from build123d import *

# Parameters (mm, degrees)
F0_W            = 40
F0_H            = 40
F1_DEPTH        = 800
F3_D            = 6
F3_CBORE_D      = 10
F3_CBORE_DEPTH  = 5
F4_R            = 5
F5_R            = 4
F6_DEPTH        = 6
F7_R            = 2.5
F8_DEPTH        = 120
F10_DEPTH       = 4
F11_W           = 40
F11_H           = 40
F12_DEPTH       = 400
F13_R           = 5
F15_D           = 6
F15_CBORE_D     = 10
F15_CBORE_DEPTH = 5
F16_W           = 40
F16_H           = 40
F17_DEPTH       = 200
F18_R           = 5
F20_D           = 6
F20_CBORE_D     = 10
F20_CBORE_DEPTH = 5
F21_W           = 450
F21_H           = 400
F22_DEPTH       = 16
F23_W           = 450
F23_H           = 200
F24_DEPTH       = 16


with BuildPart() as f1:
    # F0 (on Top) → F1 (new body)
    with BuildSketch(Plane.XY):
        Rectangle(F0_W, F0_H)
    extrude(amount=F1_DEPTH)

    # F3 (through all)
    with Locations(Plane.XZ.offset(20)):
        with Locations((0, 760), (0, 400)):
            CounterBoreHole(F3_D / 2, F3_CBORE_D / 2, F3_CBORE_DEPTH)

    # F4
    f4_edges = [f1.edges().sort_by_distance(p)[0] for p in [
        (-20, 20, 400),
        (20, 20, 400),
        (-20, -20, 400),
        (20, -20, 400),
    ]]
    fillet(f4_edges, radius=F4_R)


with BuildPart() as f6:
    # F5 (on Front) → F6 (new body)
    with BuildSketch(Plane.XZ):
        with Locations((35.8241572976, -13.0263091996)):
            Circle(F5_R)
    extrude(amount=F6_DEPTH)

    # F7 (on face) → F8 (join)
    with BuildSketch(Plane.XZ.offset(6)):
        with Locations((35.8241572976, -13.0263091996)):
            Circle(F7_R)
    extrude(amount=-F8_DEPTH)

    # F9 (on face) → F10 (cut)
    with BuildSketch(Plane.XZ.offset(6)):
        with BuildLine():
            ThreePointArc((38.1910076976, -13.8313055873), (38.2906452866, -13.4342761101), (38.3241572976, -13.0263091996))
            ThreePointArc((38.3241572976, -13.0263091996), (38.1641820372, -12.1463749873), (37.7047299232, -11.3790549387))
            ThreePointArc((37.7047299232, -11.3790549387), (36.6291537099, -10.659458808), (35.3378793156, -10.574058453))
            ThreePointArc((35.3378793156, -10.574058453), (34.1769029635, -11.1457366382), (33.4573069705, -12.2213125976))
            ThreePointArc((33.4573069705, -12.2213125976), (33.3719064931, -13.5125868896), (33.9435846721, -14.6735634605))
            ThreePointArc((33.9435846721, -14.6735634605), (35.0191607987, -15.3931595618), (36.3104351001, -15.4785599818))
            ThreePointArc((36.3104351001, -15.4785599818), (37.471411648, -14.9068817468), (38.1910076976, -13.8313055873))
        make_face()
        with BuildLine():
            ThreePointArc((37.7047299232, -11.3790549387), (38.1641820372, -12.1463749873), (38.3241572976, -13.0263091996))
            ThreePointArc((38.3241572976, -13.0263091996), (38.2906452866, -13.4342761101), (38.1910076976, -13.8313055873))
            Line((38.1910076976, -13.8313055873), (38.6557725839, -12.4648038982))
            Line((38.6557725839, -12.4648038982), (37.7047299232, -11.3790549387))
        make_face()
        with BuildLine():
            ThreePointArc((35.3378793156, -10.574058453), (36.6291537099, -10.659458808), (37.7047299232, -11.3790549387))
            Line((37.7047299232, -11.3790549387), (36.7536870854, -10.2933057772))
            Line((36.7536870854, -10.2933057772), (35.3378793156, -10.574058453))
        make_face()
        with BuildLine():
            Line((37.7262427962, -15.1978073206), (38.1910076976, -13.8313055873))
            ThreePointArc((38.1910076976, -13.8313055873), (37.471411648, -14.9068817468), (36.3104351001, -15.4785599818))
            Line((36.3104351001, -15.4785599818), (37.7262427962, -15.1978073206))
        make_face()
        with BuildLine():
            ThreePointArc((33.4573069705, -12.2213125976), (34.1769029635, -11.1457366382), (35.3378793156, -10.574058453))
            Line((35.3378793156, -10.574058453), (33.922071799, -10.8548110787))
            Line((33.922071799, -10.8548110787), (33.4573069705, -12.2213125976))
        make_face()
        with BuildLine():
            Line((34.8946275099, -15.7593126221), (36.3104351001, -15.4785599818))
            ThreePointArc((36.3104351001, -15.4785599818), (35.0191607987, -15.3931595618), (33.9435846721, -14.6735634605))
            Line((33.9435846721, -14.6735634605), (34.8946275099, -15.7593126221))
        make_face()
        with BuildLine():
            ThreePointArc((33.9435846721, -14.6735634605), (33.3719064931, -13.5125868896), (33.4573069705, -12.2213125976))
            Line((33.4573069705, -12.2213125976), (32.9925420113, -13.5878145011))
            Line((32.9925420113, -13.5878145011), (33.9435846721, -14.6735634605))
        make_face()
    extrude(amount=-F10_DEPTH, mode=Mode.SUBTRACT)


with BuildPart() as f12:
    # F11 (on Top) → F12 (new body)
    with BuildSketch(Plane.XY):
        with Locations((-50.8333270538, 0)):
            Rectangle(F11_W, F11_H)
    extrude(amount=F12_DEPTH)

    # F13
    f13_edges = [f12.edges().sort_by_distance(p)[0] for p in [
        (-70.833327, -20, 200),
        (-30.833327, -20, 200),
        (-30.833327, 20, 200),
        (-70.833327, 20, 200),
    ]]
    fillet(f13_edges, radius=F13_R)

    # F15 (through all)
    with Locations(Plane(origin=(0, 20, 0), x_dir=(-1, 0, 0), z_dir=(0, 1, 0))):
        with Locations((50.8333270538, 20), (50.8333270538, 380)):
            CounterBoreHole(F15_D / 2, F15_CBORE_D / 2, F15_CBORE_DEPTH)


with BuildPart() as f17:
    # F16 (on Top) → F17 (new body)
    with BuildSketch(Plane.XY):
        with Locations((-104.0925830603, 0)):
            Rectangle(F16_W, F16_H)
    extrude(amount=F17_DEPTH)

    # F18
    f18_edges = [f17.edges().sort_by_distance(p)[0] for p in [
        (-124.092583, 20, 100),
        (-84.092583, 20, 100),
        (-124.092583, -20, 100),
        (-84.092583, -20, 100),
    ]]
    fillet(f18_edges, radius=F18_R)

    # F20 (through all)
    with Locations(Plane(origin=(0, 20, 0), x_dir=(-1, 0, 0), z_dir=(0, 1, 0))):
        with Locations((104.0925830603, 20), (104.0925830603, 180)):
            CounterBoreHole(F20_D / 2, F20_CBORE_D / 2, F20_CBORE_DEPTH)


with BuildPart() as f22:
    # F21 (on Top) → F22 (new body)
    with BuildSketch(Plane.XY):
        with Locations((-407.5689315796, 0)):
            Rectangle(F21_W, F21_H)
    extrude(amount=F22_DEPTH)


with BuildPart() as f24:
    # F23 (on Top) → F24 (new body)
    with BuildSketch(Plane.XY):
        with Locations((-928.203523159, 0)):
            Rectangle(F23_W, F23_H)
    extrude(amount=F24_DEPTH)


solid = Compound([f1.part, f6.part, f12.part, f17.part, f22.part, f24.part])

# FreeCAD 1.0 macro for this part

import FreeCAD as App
import Part
import Sketcher


def edges_at(feature, points):
    """Names of the edges that pass closest to the given points."""
    edges = feature.Shape.Edges
    near = lambda p: min(range(len(edges)), key=lambda i: edges[i].distToShape(Part.Vertex(*p))[0])
    return sorted({f"Edge{near(p) + 1}" for p in points})

doc = App.newDocument("Part")
body = doc.addObject("PartDesign::Body", "Body")

sketch1 = body.newObject("Sketcher::SketchObject", "Sketch")
sketch1.AttachmentSupport = (doc.getObject("XY_Plane"), [""])
sketch1.MapMode = "FlatFace"
sketch1.addGeometry([
    Part.LineSegment(App.Vector(-20, 20, 0), App.Vector(-20, -20, 0)),
    Part.LineSegment(App.Vector(-20, -20, 0), App.Vector(20, -20, 0)),
    Part.LineSegment(App.Vector(20, -20, 0), App.Vector(20, 20, 0)),
    Part.LineSegment(App.Vector(20, 20, 0), App.Vector(-20, 20, 0)),
], False)
sketch1.addConstraint([
    Sketcher.Constraint("Coincident", 0, 2, 1, 1),
    Sketcher.Constraint("Coincident", 1, 2, 2, 1),
    Sketcher.Constraint("Coincident", 2, 2, 3, 1),
    Sketcher.Constraint("Coincident", 3, 2, 0, 1),
    Sketcher.Constraint("Vertical", 0),
    Sketcher.Constraint("Horizontal", 1),
    Sketcher.Constraint("Vertical", 2),
    Sketcher.Constraint("Horizontal", 3),
    Sketcher.Constraint("Symmetric", 0, 2, 2, 2, -1, 1),
    Sketcher.Constraint("Equal", 3, 0),
    Sketcher.Constraint("DistanceX", 1, 1, 1, 2, 40.0),
])
pad1 = body.newObject("PartDesign::Pad", "Pad")
pad1.Profile = sketch1
pad1.Length = 800

sketch2 = body.newObject("Sketcher::SketchObject", "Sketch001")
sketch2.AttachmentSupport = (doc.getObject("XZ_Plane"), [""])
sketch2.MapMode = "FlatFace"
sketch2.AttachmentOffset = App.Placement(App.Vector(0, 0, 20), App.Rotation())
sketch2.addGeometry([
    Part.Circle(App.Vector(0, 760, 0), App.Vector(0, 0, 1), 3),
    Part.Circle(App.Vector(0, 400, 0), App.Vector(0, 0, 1), 3),
], False)
sketch2.addConstraint([
    Sketcher.Constraint("Equal", 0, 1),
    Sketcher.Constraint("PointOnObject", 0, 3, -2),
    Sketcher.Constraint("PointOnObject", 1, 3, -2),
    Sketcher.Constraint("Diameter", 0, 6.0),
    Sketcher.Constraint("DistanceY", -1, 1, 0, 3, 760.0),
    Sketcher.Constraint("DistanceY", -1, 1, 1, 3, 400.0),
])
doc.recompute()
hole = body.newObject("PartDesign::Hole", "Hole")
hole.Profile = sketch2
hole.ThreadType = "None"
hole.Diameter = 6
hole.DepthType = "ThroughAll"
hole.HoleCutType = "Counterbore"
hole.HoleCutDiameter = 10
hole.HoleCutDepth = 5
doc.recompute()

fillet = body.newObject("PartDesign::Fillet", "Fillet")
fillet.Base = (hole, edges_at(hole, [
    (-20, 20, 400),
    (20, 20, 400),
    (-20, -20, 400),
    (20, -20, 400),
]))
fillet.Radius = 5
body2 = doc.addObject("PartDesign::Body", "Body001")

sketch3 = body2.newObject("Sketcher::SketchObject", "Sketch002")
sketch3.AttachmentSupport = (doc.getObject("XZ_Plane001"), [""])
sketch3.MapMode = "FlatFace"
sketch3.addGeometry(Part.Circle(App.Vector(35.8, -13, 0), App.Vector(0, 0, 1), 4), False)
sketch3.addConstraint([
    Sketcher.Constraint("Diameter", 0, 8.0),
    Sketcher.Constraint("DistanceY", 0, 3, -1, 1, 13.026309),
    Sketcher.Constraint("DistanceX", -1, 1, 0, 3, 35.824157),
])
pad2 = body2.newObject("PartDesign::Pad", "Pad001")
pad2.Profile = sketch3
pad2.Length = 6

sketch4 = body2.newObject("Sketcher::SketchObject", "Sketch003")
sketch4.AttachmentSupport = (doc.getObject("XZ_Plane001"), [""])
sketch4.MapMode = "FlatFace"
sketch4.AttachmentOffset = App.Placement(App.Vector(0, 0, 6), App.Rotation())
sketch4.addGeometry(Part.Circle(App.Vector(35.8, -13, 0), App.Vector(0, 0, 1), 2.5), False)
sketch4.addConstraint([
    Sketcher.Constraint("Diameter", 0, 5.0),
    Sketcher.Constraint("DistanceY", 0, 3, -1, 1, 13.026309),
    Sketcher.Constraint("DistanceX", -1, 1, 0, 3, 35.824157),
])
pad3 = body2.newObject("PartDesign::Pad", "Pad002")
pad3.Profile = sketch4
pad3.Length = 120
pad3.Reversed = True

sketch5 = body2.newObject("Sketcher::SketchObject", "Sketch004")
sketch5.AttachmentSupport = (doc.getObject("XZ_Plane001"), [""])
sketch5.MapMode = "FlatFace"
sketch5.AttachmentOffset = App.Placement(App.Vector(0, 0, 6), App.Rotation())
sketch5.addGeometry([
    Part.LineSegment(App.Vector(33.9, -14.7, 0), App.Vector(34.9, -15.8, 0)),
    Part.LineSegment(App.Vector(34.9, -15.8, 0), App.Vector(36.3, -15.5, 0)),
    Part.LineSegment(App.Vector(36.3, -15.5, 0), App.Vector(37.7, -15.2, 0)),
    Part.LineSegment(App.Vector(37.7, -15.2, 0), App.Vector(38.2, -13.8, 0)),
    Part.LineSegment(App.Vector(38.2, -13.8, 0), App.Vector(38.7, -12.5, 0)),
    Part.LineSegment(App.Vector(38.7, -12.5, 0), App.Vector(37.7, -11.4, 0)),
    Part.LineSegment(App.Vector(37.7, -11.4, 0), App.Vector(36.8, -10.3, 0)),
    Part.LineSegment(App.Vector(36.8, -10.3, 0), App.Vector(35.3, -10.6, 0)),
    Part.LineSegment(App.Vector(35.3, -10.6, 0), App.Vector(33.9, -10.9, 0)),
    Part.LineSegment(App.Vector(33.9, -10.9, 0), App.Vector(33.5, -12.2, 0)),
    Part.LineSegment(App.Vector(33.5, -12.2, 0), App.Vector(33, -13.6, 0)),
    Part.LineSegment(App.Vector(33, -13.6, 0), App.Vector(33.9, -14.7, 0)),
], False)
sketch5.addConstraint([
    Sketcher.Constraint("Coincident", 0, 2, 1, 1),
    Sketcher.Constraint("Coincident", 1, 2, 2, 1),
    Sketcher.Constraint("Coincident", 2, 2, 3, 1),
    Sketcher.Constraint("Coincident", 3, 2, 4, 1),
    Sketcher.Constraint("Coincident", 4, 2, 5, 1),
    Sketcher.Constraint("Coincident", 5, 2, 6, 1),
    Sketcher.Constraint("Coincident", 6, 2, 7, 1),
    Sketcher.Constraint("Coincident", 7, 2, 8, 1),
    Sketcher.Constraint("Coincident", 8, 2, 9, 1),
    Sketcher.Constraint("Coincident", 9, 2, 10, 1),
    Sketcher.Constraint("Coincident", 10, 2, 11, 1),
    Sketcher.Constraint("Coincident", 11, 2, 0, 1),
    Sketcher.Constraint("Parallel", 1, 2),
    Sketcher.Constraint("Parallel", 3, 4),
    Sketcher.Constraint("Parallel", 0, 5),
    Sketcher.Constraint("Parallel", 5, 6),
    Sketcher.Constraint("Parallel", 2, 7),
    Sketcher.Constraint("Parallel", 7, 8),
    Sketcher.Constraint("Parallel", 4, 9),
    Sketcher.Constraint("Parallel", 9, 10),
    Sketcher.Constraint("Parallel", 6, 11),
    Sketcher.Constraint("Equal", 0, 1),
    Sketcher.Constraint("Equal", 1, 2),
    Sketcher.Constraint("Equal", 2, 3),
    Sketcher.Constraint("Equal", 3, 4),
    Sketcher.Constraint("Equal", 4, 5),
    Sketcher.Constraint("Equal", 5, 6),
    Sketcher.Constraint("Equal", 6, 7),
    Sketcher.Constraint("Equal", 7, 8),
    Sketcher.Constraint("Equal", 8, 9),
    Sketcher.Constraint("DistanceY", 3, 2, 6, 2, 3.538),
    Sketcher.Constraint("DistanceY", 2, 2, 3, 2, 1.366502),
    Sketcher.Constraint("DistanceX", 8, 2, 4, 2, 4.733701),
    Sketcher.Constraint("DistanceY", 1, 2, -1, 1, 15.47856),
    Sketcher.Constraint("DistanceX", -1, 1, 5, 2, 37.70473),
    Sketcher.Constraint("DistanceX", -1, 1, 8, 2, 33.922072),
])
pocket1 = body2.newObject("PartDesign::Pocket", "Pocket")
pocket1.Profile = sketch5
pocket1.Length = 4
body3 = doc.addObject("PartDesign::Body", "Body002")

sketch6 = body3.newObject("Sketcher::SketchObject", "Sketch005")
sketch6.AttachmentSupport = (doc.getObject("XY_Plane002"), [""])
sketch6.MapMode = "FlatFace"
sketch6.addGeometry([
    Part.LineSegment(App.Vector(-71, 20, 0), App.Vector(-71, -20, 0)),
    Part.LineSegment(App.Vector(-71, -20, 0), App.Vector(-31, -20, 0)),
    Part.LineSegment(App.Vector(-31, -20, 0), App.Vector(-31, 20, 0)),
    Part.LineSegment(App.Vector(-31, 20, 0), App.Vector(-71, 20, 0)),
], False)
sketch6.addConstraint([
    Sketcher.Constraint("Coincident", 0, 2, 1, 1),
    Sketcher.Constraint("Coincident", 1, 2, 2, 1),
    Sketcher.Constraint("Coincident", 2, 2, 3, 1),
    Sketcher.Constraint("Coincident", 3, 2, 0, 1),
    Sketcher.Constraint("Vertical", 0),
    Sketcher.Constraint("Horizontal", 1),
    Sketcher.Constraint("Vertical", 2),
    Sketcher.Constraint("Horizontal", 3),
    Sketcher.Constraint("Equal", 3, 0),
    Sketcher.Constraint("DistanceX", 1, 1, 1, 2, 40.0),
    Sketcher.Constraint("DistanceY", 0, 2, -1, 1, 20.0),
    Sketcher.Constraint("DistanceX", 0, 2, -1, 1, 70.833327),
])
pad4 = body3.newObject("PartDesign::Pad", "Pad003")
pad4.Profile = sketch6
pad4.Length = 400
doc.recompute()

fillet2 = body3.newObject("PartDesign::Fillet", "Fillet001")
fillet2.Base = (pad4, edges_at(pad4, [
    (-70.833, -20, 200),
    (-30.833, -20, 200),
    (-30.833, 20, 200),
    (-70.833, 20, 200),
]))
fillet2.Radius = 5

sketch7 = body3.newObject("Sketcher::SketchObject", "Sketch006")
sketch7.AttachmentSupport = (doc.getObject("XZ_Plane002"), [""])
sketch7.MapMode = "FlatFace"
sketch7.AttachmentOffset = App.Placement(App.Vector(0, 0, -20), App.Rotation())
sketch7.addGeometry([
    Part.Circle(App.Vector(-50.8, 20, 0), App.Vector(0, 0, 1), 3),
    Part.Circle(App.Vector(-50.8, 380, 0), App.Vector(0, 0, 1), 3),
], False)
sketch7.addConstraint([
    Sketcher.Constraint("Equal", 0, 1),
    Sketcher.Constraint("Vertical", 0, 3, 1, 3),
    Sketcher.Constraint("Diameter", 0, 6.0),
    Sketcher.Constraint("DistanceY", -1, 1, 0, 3, 20.0),
    Sketcher.Constraint("DistanceY", -1, 1, 1, 3, 380.0),
    Sketcher.Constraint("DistanceX", 0, 3, -1, 1, 50.833327),
])
doc.recompute()
hole2 = body3.newObject("PartDesign::Hole", "Hole001")
hole2.Profile = sketch7
hole2.ThreadType = "None"
hole2.Diameter = 6
hole2.DepthType = "ThroughAll"
hole2.HoleCutType = "Counterbore"
hole2.HoleCutDiameter = 10
hole2.HoleCutDepth = 5
hole2.Reversed = True
body4 = doc.addObject("PartDesign::Body", "Body003")

sketch8 = body4.newObject("Sketcher::SketchObject", "Sketch007")
sketch8.AttachmentSupport = (doc.getObject("XY_Plane003"), [""])
sketch8.MapMode = "FlatFace"
sketch8.addGeometry([
    Part.LineSegment(App.Vector(-124, 20, 0), App.Vector(-124, -20, 0)),
    Part.LineSegment(App.Vector(-124, -20, 0), App.Vector(-84, -20, 0)),
    Part.LineSegment(App.Vector(-84, -20, 0), App.Vector(-84, 20, 0)),
    Part.LineSegment(App.Vector(-84, 20, 0), App.Vector(-124, 20, 0)),
], False)
sketch8.addConstraint([
    Sketcher.Constraint("Coincident", 0, 2, 1, 1),
    Sketcher.Constraint("Coincident", 1, 2, 2, 1),
    Sketcher.Constraint("Coincident", 2, 2, 3, 1),
    Sketcher.Constraint("Coincident", 3, 2, 0, 1),
    Sketcher.Constraint("Vertical", 0),
    Sketcher.Constraint("Horizontal", 1),
    Sketcher.Constraint("Vertical", 2),
    Sketcher.Constraint("Horizontal", 3),
    Sketcher.Constraint("Equal", 3, 0),
    Sketcher.Constraint("DistanceX", 1, 1, 1, 2, 40.0),
    Sketcher.Constraint("DistanceY", 0, 2, -1, 1, 20.0),
    Sketcher.Constraint("DistanceX", 0, 2, -1, 1, 124.092583),
])
pad5 = body4.newObject("PartDesign::Pad", "Pad004")
pad5.Profile = sketch8
pad5.Length = 200
doc.recompute()

fillet3 = body4.newObject("PartDesign::Fillet", "Fillet002")
fillet3.Base = (pad5, edges_at(pad5, [
    (-124.093, 20, 100),
    (-84.093, 20, 100),
    (-124.093, -20, 100),
    (-84.093, -20, 100),
]))
fillet3.Radius = 5

sketch9 = body4.newObject("Sketcher::SketchObject", "Sketch008")
sketch9.AttachmentSupport = (doc.getObject("XZ_Plane003"), [""])
sketch9.MapMode = "FlatFace"
sketch9.AttachmentOffset = App.Placement(App.Vector(0, 0, -20), App.Rotation())
sketch9.addGeometry([
    Part.Circle(App.Vector(-104.1, 20, 0), App.Vector(0, 0, 1), 3),
    Part.Circle(App.Vector(-104.1, 180, 0), App.Vector(0, 0, 1), 3),
], False)
sketch9.addConstraint([
    Sketcher.Constraint("Equal", 0, 1),
    Sketcher.Constraint("Vertical", 0, 3, 1, 3),
    Sketcher.Constraint("Diameter", 0, 6.0),
    Sketcher.Constraint("DistanceY", -1, 1, 0, 3, 20.0),
    Sketcher.Constraint("DistanceY", -1, 1, 1, 3, 180.0),
    Sketcher.Constraint("DistanceX", 0, 3, -1, 1, 104.092583),
])
doc.recompute()
hole3 = body4.newObject("PartDesign::Hole", "Hole002")
hole3.Profile = sketch9
hole3.ThreadType = "None"
hole3.Diameter = 6
hole3.DepthType = "ThroughAll"
hole3.HoleCutType = "Counterbore"
hole3.HoleCutDiameter = 10
hole3.HoleCutDepth = 5
hole3.Reversed = True
body5 = doc.addObject("PartDesign::Body", "Body004")

sketch10 = body5.newObject("Sketcher::SketchObject", "Sketch009")
sketch10.AttachmentSupport = (doc.getObject("XY_Plane004"), [""])
sketch10.MapMode = "FlatFace"
sketch10.addGeometry([
    Part.LineSegment(App.Vector(-633, 200, 0), App.Vector(-633, -200, 0)),
    Part.LineSegment(App.Vector(-633, -200, 0), App.Vector(-183, -200, 0)),
    Part.LineSegment(App.Vector(-183, -200, 0), App.Vector(-183, 200, 0)),
    Part.LineSegment(App.Vector(-183, 200, 0), App.Vector(-633, 200, 0)),
], False)
sketch10.addConstraint([
    Sketcher.Constraint("Coincident", 0, 2, 1, 1),
    Sketcher.Constraint("Coincident", 1, 2, 2, 1),
    Sketcher.Constraint("Coincident", 2, 2, 3, 1),
    Sketcher.Constraint("Coincident", 3, 2, 0, 1),
    Sketcher.Constraint("Vertical", 0),
    Sketcher.Constraint("Horizontal", 1),
    Sketcher.Constraint("Vertical", 2),
    Sketcher.Constraint("Horizontal", 3),
    Sketcher.Constraint("DistanceX", 1, 1, 1, 2, 450.0),
    Sketcher.Constraint("DistanceY", 0, 2, 0, 1, 400.0),
    Sketcher.Constraint("DistanceY", 0, 2, -1, 1, 200.0),
    Sketcher.Constraint("DistanceX", 0, 2, -1, 1, 632.568932),
])
pad6 = body5.newObject("PartDesign::Pad", "Pad005")
pad6.Profile = sketch10
pad6.Length = 16
body6 = doc.addObject("PartDesign::Body", "Body005")

sketch11 = body6.newObject("Sketcher::SketchObject", "Sketch010")
sketch11.AttachmentSupport = (doc.getObject("XY_Plane005"), [""])
sketch11.MapMode = "FlatFace"
sketch11.addGeometry([
    Part.LineSegment(App.Vector(-1153, 100, 0), App.Vector(-1153, -100, 0)),
    Part.LineSegment(App.Vector(-1153, -100, 0), App.Vector(-703, -100, 0)),
    Part.LineSegment(App.Vector(-703, -100, 0), App.Vector(-703, 100, 0)),
    Part.LineSegment(App.Vector(-703, 100, 0), App.Vector(-1153, 100, 0)),
], False)
sketch11.addConstraint([
    Sketcher.Constraint("Coincident", 0, 2, 1, 1),
    Sketcher.Constraint("Coincident", 1, 2, 2, 1),
    Sketcher.Constraint("Coincident", 2, 2, 3, 1),
    Sketcher.Constraint("Coincident", 3, 2, 0, 1),
    Sketcher.Constraint("Vertical", 0),
    Sketcher.Constraint("Horizontal", 1),
    Sketcher.Constraint("Vertical", 2),
    Sketcher.Constraint("Horizontal", 3),
    Sketcher.Constraint("DistanceX", 1, 1, 1, 2, 450.0),
    Sketcher.Constraint("DistanceY", 0, 2, 0, 1, 200.0),
    Sketcher.Constraint("DistanceY", 0, 2, -1, 1, 100.0),
    Sketcher.Constraint("DistanceX", 0, 2, -1, 1, 1153.203523),
])
pad7 = body6.newObject("PartDesign::Pad", "Pad006")
pad7.Profile = sketch11
pad7.Length = 16

doc.recompute()
